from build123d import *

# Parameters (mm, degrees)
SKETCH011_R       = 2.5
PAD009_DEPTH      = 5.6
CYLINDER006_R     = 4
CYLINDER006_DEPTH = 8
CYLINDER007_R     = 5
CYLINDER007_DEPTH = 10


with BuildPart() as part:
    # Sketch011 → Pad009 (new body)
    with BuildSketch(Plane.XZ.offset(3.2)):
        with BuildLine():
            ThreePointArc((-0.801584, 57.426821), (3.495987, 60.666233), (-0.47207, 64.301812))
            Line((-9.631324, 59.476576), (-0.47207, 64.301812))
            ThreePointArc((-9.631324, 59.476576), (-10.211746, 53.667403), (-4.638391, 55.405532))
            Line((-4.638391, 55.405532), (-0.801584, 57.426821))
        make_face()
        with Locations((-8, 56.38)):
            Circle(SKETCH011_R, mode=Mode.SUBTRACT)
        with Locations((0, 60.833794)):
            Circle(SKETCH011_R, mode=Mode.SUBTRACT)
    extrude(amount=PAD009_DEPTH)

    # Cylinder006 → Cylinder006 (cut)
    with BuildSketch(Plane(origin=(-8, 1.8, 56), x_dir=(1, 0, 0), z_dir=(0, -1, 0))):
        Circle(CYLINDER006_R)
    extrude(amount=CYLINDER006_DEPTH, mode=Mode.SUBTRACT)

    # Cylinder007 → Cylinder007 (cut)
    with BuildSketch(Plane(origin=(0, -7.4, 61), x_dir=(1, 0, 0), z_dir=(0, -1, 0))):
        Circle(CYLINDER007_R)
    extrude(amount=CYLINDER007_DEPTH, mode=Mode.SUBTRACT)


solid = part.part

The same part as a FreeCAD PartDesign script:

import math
import FreeCAD as App
import Part
import Sketcher

V = App.Vector
Q = App.Units.Quantity

doc = App.newDocument("Part")
body = doc.addObject("PartDesign::Body", "Body")

# Sketch on XZ plane
sketch1 = body.newObject("Sketcher::SketchObject", "Sketch")
sketch1.AttachmentSupport = (doc.getObject("XZ_Plane"), [""])
sketch1.MapMode = "FlatFace"
sketch1.AttachmentOffset = App.Placement(V(0, 0, 3.2), App.Rotation())
sketch1.addGeometry([
    Part.ArcOfCircle(Part.Circle(V(0, 60.8, 0), V(0, 0, 1), 3.5), math.radians(-103), math.radians(98)),  # 0
    Part.LineSegment(V(-0.5, 64.3, 0), V(-9.6, 59.5, 0)),  # 1
    Part.ArcOfCircle(Part.Circle(V(-8, 56.4, 0), V(0, 0, 1), 3.5), math.radians(118), math.radians(344)),  # 2
    Part.LineSegment(V(-4.6, 55.4, 0), V(-0.8, 57.4, 0)),  # 3
    Part.Circle(V(-8, 56.4, 0), V(0, 0, 1), 2.5),  # 4
    Part.Circle(V(0, 60.8, 0), V(0, 0, 1), 2.5),  # 5
], False)
sketch1.addConstraint([
    Sketcher.Constraint("Coincident", 0, 2, 1, 1),
    Sketcher.Constraint("Tangent", 1, 2, 2, 1),
    Sketcher.Constraint("Coincident", 2, 2, 3, 1),
    Sketcher.Constraint("Coincident", 3, 2, 0, 1),
    Sketcher.Constraint("Coincident", 4, 3, 2, 3),
    Sketcher.Constraint("Coincident", 5, 3, 0, 3),
    Sketcher.Constraint("Equal", 0, 2),
    Sketcher.Constraint("Equal", 4, 5),
    Sketcher.Constraint("PointOnObject", 0, 3, -2),
    Sketcher.Constraint("Parallel", 1, 3),
    Sketcher.Constraint("Diameter", 4, Q("5 mm")),
    Sketcher.Constraint("Radius", 0, Q("3.5 mm")),
    Sketcher.Constraint("DistanceX", 2, 3, -1, 1, Q("8 mm")),
    Sketcher.Constraint("DistanceY", -1, 1, 2, 3, Q("56.38 mm")),
    Sketcher.Constraint("Distance", 1, Q("10.352528 mm")),
    Sketcher.Constraint("Distance", 3, Q("4.336669 mm")),
    Sketcher.Constraint("DistanceX", 0, 2, -1, 1, Q("0.47207 mm")),
])
pad1 = body.newObject("PartDesign::Pad", "Pad")
pad1.Profile = sketch1
pad1.Length = 5.6

# Sketch on XZ plane
sketch2 = body.newObject("Sketcher::SketchObject", "Sketch001")
sketch2.AttachmentSupport = (doc.getObject("XZ_Plane"), [""])
sketch2.MapMode = "FlatFace"
sketch2.AttachmentOffset = App.Placement(V(0, 0, -1.8), App.Rotation())
sketch2.addGeometry(Part.Circle(V(-8, 56, 0), V(0, 0, 1), 4), False)
sketch2.addConstraint([
    Sketcher.Constraint("Diameter", 0, Q("8 mm")),
    Sketcher.Constraint("DistanceX", 0, 3, -1, 1, Q("8 mm")),
    Sketcher.Constraint("DistanceY", -1, 1, 0, 3, Q("56 mm")),
])
pocket1 = body.newObject("PartDesign::Pocket", "Pocket")
pocket1.Profile = sketch2
pocket1.Length = 8
pocket1.Reversed = True

# Sketch on XZ plane
sketch3 = body.newObject("Sketcher::SketchObject", "Sketch002")
sketch3.AttachmentSupport = (doc.getObject("XZ_Plane"), [""])
sketch3.MapMode = "FlatFace"
sketch3.AttachmentOffset = App.Placement(V(0, 0, 7.4), App.Rotation())
sketch3.addGeometry(Part.Circle(V(0, 61, 0), V(0, 0, 1), 5), False)
sketch3.addConstraint([
    Sketcher.Constraint("PointOnObject", 0, 3, -2),
    Sketcher.Constraint("Diameter", 0, Q("10 mm")),
    Sketcher.Constraint("DistanceY", -1, 1, 0, 3, Q("61 mm")),
])
pocket2 = body.newObject("PartDesign::Pocket", "Pocket001")
pocket2.Profile = sketch3
pocket2.Length = 10
pocket2.Reversed = True

doc.recompute()
